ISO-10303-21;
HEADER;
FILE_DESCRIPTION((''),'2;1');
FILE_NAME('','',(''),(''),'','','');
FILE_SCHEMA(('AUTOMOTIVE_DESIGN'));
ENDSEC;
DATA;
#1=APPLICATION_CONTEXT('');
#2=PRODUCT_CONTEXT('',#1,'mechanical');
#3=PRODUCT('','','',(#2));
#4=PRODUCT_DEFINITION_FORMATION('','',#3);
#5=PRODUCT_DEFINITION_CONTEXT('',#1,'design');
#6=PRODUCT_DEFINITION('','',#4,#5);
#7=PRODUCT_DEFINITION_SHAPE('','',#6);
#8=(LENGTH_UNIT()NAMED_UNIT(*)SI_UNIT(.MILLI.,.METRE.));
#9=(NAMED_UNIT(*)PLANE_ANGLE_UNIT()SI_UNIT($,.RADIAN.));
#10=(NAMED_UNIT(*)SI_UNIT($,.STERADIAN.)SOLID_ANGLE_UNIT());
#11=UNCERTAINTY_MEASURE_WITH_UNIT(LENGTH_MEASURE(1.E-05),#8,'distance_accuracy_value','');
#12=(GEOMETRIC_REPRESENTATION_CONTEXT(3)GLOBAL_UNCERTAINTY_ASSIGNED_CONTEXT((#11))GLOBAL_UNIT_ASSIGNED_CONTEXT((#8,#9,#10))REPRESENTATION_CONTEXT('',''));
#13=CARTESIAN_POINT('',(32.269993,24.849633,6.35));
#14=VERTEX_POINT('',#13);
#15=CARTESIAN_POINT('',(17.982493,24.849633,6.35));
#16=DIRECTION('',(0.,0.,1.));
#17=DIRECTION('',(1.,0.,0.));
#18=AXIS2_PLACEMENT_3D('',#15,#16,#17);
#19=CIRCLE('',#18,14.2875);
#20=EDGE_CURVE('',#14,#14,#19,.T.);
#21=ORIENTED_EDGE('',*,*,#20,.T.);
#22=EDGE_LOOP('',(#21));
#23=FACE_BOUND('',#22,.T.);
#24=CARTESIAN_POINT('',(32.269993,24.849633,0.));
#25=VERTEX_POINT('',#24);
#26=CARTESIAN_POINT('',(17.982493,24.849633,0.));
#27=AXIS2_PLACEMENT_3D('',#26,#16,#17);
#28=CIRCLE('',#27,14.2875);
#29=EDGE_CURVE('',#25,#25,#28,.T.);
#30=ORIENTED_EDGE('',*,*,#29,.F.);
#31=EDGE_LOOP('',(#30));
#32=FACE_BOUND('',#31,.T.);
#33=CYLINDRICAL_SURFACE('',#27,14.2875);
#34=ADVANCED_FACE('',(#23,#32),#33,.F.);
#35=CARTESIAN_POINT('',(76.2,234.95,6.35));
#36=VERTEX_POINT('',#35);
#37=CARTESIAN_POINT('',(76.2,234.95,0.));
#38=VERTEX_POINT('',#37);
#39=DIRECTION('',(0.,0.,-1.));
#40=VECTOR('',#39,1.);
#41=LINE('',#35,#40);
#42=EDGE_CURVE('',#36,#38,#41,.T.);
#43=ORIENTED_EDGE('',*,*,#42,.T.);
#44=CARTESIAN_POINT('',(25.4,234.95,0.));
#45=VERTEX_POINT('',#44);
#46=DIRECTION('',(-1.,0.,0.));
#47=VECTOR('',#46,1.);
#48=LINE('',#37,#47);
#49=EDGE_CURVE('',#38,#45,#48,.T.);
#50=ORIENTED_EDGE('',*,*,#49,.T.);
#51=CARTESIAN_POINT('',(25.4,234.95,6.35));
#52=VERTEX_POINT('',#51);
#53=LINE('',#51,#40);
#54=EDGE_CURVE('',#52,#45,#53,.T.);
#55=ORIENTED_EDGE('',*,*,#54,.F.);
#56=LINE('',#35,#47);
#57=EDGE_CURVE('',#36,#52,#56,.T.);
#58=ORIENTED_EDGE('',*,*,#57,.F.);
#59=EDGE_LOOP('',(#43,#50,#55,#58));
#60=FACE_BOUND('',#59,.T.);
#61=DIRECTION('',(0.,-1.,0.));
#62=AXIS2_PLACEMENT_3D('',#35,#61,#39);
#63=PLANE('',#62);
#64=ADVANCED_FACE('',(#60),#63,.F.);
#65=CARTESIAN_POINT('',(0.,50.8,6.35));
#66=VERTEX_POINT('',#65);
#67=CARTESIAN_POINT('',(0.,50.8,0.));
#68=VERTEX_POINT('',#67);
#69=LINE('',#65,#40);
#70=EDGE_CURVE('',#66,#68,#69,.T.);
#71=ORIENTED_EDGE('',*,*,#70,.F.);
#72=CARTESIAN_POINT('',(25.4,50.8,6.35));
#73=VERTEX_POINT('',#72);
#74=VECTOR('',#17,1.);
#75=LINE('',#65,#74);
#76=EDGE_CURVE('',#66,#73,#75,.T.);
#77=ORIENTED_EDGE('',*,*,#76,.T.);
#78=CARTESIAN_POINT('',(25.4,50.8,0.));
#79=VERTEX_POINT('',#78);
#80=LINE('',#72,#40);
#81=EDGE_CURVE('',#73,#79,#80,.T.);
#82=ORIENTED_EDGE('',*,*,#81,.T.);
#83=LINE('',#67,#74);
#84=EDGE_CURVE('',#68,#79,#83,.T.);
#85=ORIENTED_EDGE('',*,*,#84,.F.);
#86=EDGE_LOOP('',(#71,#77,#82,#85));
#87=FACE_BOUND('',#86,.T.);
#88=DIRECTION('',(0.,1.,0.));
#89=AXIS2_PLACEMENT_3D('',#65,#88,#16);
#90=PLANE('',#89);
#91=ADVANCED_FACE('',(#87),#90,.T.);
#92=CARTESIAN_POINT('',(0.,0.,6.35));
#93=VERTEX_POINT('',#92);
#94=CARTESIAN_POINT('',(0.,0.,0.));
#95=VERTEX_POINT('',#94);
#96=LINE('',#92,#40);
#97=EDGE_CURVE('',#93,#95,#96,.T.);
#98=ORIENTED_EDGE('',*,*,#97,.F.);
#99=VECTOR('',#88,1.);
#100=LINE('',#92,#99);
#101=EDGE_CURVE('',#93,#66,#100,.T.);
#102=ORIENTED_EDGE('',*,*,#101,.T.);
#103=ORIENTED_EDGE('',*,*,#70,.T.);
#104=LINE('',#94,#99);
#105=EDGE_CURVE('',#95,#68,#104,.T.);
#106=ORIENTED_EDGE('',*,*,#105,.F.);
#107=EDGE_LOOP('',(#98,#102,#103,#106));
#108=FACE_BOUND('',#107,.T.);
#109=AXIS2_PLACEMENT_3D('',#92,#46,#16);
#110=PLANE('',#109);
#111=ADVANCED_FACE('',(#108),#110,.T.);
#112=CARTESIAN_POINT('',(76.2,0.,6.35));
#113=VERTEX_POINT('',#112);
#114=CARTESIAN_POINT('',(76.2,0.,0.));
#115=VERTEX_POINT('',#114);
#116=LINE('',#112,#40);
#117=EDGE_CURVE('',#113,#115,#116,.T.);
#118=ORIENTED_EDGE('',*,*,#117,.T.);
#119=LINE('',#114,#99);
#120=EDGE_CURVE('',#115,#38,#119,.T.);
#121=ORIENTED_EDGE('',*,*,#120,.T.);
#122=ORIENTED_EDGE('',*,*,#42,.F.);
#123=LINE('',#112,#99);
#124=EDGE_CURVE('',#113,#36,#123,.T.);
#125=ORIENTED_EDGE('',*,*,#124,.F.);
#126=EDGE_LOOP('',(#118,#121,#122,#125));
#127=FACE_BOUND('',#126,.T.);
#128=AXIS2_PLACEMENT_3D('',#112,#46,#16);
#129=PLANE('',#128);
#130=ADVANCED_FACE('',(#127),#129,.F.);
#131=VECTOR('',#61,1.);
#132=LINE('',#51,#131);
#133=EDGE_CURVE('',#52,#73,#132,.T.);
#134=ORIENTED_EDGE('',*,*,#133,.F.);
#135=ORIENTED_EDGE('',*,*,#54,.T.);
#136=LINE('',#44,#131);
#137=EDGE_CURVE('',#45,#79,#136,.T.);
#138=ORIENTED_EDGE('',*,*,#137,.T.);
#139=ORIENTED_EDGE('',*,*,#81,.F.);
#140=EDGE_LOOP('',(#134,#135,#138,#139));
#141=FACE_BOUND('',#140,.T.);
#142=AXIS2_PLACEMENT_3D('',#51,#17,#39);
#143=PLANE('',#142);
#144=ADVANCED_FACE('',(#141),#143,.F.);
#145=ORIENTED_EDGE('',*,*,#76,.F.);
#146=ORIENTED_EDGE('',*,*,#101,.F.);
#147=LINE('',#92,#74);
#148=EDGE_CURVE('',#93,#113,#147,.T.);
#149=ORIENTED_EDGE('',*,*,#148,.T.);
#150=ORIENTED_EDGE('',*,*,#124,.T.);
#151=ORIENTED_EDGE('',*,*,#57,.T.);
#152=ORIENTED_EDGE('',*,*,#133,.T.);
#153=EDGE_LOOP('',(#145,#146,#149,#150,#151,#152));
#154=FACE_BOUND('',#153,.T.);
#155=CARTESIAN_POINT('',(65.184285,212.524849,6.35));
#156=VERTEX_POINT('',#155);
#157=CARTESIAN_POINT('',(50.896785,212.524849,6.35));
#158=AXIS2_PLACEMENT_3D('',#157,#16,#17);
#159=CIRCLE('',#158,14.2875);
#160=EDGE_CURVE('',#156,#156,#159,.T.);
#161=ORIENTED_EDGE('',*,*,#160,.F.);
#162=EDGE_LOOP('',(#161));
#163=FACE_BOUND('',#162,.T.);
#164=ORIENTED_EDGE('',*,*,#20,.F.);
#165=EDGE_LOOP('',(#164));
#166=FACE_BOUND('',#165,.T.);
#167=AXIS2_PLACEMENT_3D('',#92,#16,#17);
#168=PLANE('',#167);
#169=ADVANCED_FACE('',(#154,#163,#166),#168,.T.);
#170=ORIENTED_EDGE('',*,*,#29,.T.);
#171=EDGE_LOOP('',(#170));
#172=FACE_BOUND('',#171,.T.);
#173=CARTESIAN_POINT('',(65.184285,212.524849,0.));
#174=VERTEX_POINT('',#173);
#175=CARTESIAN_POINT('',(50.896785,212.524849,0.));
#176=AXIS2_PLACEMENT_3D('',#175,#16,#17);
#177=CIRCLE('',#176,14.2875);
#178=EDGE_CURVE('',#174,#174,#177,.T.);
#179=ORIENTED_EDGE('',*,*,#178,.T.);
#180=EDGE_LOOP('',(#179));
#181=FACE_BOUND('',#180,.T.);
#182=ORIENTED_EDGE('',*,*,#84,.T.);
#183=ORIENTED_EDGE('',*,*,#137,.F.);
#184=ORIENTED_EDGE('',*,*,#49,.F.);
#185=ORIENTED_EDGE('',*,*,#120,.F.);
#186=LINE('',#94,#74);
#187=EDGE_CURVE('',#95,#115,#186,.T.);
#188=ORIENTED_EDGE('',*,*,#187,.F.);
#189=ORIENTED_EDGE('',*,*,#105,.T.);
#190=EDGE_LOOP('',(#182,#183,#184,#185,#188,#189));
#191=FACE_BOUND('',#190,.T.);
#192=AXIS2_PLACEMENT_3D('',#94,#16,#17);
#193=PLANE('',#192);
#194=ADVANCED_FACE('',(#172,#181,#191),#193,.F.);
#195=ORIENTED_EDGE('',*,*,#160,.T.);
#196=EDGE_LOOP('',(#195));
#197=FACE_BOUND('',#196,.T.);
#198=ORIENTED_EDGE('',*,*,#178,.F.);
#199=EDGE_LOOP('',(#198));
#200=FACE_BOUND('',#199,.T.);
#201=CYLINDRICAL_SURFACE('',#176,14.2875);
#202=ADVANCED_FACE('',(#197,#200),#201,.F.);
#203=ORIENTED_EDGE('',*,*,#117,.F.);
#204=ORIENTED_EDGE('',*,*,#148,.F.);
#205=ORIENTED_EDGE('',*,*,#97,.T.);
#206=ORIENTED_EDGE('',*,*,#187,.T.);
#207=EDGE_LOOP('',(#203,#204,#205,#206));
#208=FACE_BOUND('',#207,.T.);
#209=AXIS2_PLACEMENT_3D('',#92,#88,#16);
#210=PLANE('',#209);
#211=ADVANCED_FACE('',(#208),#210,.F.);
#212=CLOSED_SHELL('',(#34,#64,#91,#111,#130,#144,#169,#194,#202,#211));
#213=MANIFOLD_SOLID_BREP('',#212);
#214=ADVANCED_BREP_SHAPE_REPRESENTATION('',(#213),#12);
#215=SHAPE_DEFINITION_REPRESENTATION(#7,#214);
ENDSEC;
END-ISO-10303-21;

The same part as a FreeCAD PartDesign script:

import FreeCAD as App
import Part
import Sketcher
from FreeCAD import Vector
Q = App.Units.Quantity

doc = App.newDocument("Part")
params = doc.addObject("Spreadsheet::Sheet", "Params")
for row, (alias, value) in enumerate([
    ("sketch1_width", "3 in"),
    ("sketch1_width2", "2 in"),
    ("sketch1_height", "9.25 in"),
    ("pad1_length", "0.25 in"),
    ("sketch2_diameter", "1.125 in"),
    ("pocket1_length", "0.25 in"),
], start=1):
    params.set(f"A{row}", alias)
    params.set(f"B{row}", "=" + value)
    params.setAlias(f"B{row}", alias)

body = doc.addObject("PartDesign::Body", "Body")

sketch1 = body.newObject("Sketcher::SketchObject", "Sketch")
sketch1.AttachmentSupport = (doc.getObject("XY_Plane"), [""])
sketch1.MapMode = "FlatFace"
sketch1.addGeometry(Part.LineSegment(Vector(0, 0, 0), Vector(76, 0, 0)), False)
sketch1.addGeometry(Part.LineSegment(Vector(76, 0, 0), Vector(76, 235, 0)), False)
sketch1.addGeometry(Part.LineSegment(Vector(76, 235, 0), Vector(25, 235, 0)), False)
sketch1.addGeometry(Part.LineSegment(Vector(25, 235, 0), Vector(25, 51, 0)), False)
sketch1.addGeometry(Part.LineSegment(Vector(25, 51, 0), Vector(0, 51, 0)), False)
sketch1.addGeometry(Part.LineSegment(Vector(0, 51, 0), Vector(0, 0, 0)), False)
sketch1.addConstraint(Sketcher.Constraint("Coincident", 0, 2, 1, 1))
sketch1.addConstraint(Sketcher.Constraint("Coincident", 1, 2, 2, 1))
sketch1.addConstraint(Sketcher.Constraint("Coincident", 2, 2, 3, 1))
sketch1.addConstraint(Sketcher.Constraint("Coincident", 3, 2, 4, 1))
sketch1.addConstraint(Sketcher.Constraint("Coincident", 4, 2, 5, 1))
sketch1.addConstraint(Sketcher.Constraint("Coincident", 5, 2, 0, 1))
sketch1.addConstraint(Sketcher.Constraint("Horizontal", 0))
sketch1.addConstraint(Sketcher.Constraint("Vertical", 1))
sketch1.addConstraint(Sketcher.Constraint("Horizontal", 2))
sketch1.addConstraint(Sketcher.Constraint("Vertical", 3))
sketch1.addConstraint(Sketcher.Constraint("Horizontal", 4))
sketch1.addConstraint(Sketcher.Constraint("Vertical", 5))
sketch1.addConstraint(Sketcher.Constraint("Coincident", 5, 2, -1, 1))
sketch1.addConstraint(Sketcher.Constraint("Equal", 2, 5))
sketch1.addConstraint(Sketcher.Constraint("DistanceX", 0, 1, 0, 2, Q("3 in")))
sketch1.addConstraint(Sketcher.Constraint("DistanceX", 2, 2, 2, 1, Q("2 in")))
sketch1.addConstraint(Sketcher.Constraint("DistanceY", 1, 1, 1, 2, Q("9.25 in")))
sketch1.setExpression("Constraints[14]", "Params.sketch1_width")
sketch1.setExpression("Constraints[15]", "Params.sketch1_width2")
sketch1.setExpression("Constraints[16]", "Params.sketch1_height")
pad1 = body.newObject("PartDesign::Pad", "Pad")
pad1.Profile = sketch1
pad1.setExpression("Length", "Params.pad1_length")

sketch2 = body.newObject("Sketcher::SketchObject", "Sketch001")
sketch2.AttachmentSupport = (doc.getObject("XY_Plane"), [""])
sketch2.MapMode = "FlatFace"
sketch2.AttachmentOffset = App.Placement(Vector(0, 0, 0.25 * 25.4), App.Rotation())
sketch2.addGeometry(Part.Circle(Vector(18, 25, 0), Vector(0, 0, 1), 14), False)
sketch2.addGeometry(Part.Circle(Vector(51, 213, 0), Vector(0, 0, 1), 14), False)
sketch2.addConstraint(Sketcher.Constraint("Equal", 0, 1))
sketch2.addConstraint(Sketcher.Constraint("Diameter", 0, Q("1.125 in")))
sketch2.addConstraint(Sketcher.Constraint("DistanceY", -1, 1, 1, 3, 212.524849))
sketch2.addConstraint(Sketcher.Constraint("DistanceX", -1, 1, 0, 3, 17.982493))
sketch2.addConstraint(Sketcher.Constraint("DistanceY", -1, 1, 0, 3, 24.849633))
sketch2.addConstraint(Sketcher.Constraint("DistanceX", -1, 1, 1, 3, 50.896785))
sketch2.setExpression("Constraints[1]", "Params.sketch2_diameter")
pocket1 = body.newObject("PartDesign::Pocket", "Pocket")
pocket1.Profile = sketch2
pocket1.setExpression("Length", "Params.pocket1_length")

doc.recompute()
